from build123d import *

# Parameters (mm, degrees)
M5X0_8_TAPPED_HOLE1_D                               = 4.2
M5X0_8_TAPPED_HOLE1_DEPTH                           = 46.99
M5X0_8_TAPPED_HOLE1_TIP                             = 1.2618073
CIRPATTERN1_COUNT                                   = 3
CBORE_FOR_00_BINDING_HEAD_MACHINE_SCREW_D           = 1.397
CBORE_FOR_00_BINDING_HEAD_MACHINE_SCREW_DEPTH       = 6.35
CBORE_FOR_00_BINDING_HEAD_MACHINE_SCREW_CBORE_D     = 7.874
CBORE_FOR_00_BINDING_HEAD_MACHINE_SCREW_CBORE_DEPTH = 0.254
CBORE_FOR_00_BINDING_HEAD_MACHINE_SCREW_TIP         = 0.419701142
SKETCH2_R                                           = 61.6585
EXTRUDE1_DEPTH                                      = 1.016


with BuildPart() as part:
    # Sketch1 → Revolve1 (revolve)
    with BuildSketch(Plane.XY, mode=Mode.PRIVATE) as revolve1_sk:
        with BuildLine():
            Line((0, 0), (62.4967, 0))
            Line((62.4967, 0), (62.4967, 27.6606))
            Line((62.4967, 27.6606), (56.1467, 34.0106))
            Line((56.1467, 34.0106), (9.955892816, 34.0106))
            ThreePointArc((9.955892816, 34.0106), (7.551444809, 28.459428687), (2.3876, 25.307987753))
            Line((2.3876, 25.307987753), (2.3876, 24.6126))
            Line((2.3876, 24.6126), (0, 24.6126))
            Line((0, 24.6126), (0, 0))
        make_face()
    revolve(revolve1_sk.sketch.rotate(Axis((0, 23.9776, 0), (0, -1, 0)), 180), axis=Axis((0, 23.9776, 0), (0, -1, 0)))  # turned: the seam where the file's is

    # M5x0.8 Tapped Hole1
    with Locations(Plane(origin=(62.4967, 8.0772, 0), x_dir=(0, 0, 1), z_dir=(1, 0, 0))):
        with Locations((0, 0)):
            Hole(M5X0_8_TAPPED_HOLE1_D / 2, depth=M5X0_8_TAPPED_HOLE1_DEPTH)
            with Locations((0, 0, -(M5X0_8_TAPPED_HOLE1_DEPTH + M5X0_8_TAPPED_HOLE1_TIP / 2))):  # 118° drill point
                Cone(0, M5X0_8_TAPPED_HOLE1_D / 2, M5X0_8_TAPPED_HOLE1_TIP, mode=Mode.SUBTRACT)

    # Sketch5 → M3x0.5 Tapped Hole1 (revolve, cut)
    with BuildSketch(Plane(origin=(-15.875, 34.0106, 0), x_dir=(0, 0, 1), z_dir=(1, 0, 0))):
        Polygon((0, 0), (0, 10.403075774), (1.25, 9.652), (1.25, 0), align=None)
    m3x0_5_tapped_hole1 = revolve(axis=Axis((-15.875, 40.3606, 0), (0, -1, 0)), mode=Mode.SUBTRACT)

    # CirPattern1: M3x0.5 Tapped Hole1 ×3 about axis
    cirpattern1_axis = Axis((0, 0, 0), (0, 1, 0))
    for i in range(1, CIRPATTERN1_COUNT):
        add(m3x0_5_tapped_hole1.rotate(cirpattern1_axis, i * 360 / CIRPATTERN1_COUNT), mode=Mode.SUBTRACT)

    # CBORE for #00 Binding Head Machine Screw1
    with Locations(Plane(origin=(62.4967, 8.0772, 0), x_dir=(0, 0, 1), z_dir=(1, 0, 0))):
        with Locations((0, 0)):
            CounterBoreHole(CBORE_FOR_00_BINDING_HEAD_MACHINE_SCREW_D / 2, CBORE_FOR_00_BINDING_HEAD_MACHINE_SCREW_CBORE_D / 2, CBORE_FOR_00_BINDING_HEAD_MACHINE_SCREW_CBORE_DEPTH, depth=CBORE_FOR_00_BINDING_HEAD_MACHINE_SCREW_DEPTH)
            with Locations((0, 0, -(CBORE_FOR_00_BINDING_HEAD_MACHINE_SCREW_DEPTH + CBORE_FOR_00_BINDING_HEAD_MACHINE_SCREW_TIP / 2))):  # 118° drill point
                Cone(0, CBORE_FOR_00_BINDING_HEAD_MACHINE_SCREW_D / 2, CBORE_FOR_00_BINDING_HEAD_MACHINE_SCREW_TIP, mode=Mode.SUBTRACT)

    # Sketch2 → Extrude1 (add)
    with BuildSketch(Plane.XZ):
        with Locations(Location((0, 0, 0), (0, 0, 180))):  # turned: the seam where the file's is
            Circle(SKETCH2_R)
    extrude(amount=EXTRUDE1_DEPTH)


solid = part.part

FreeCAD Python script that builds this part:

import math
import FreeCAD as App
import Part
import Sketcher

V = App.Vector
Q = App.Units.Quantity

doc = App.newDocument("Part")
body = doc.addObject("PartDesign::Body", "Body")

# Sketch on XY plane
sketch1 = doc.addObject("Sketcher::SketchObject", "Sketch")
body.addObject(sketch1)
sketch1.AttachmentSupport = (doc.XY_Plane, [""])
sketch1.MapMode = "FlatFace"
sketch1.addGeometry(Part.LineSegment(V(0, 0, 0), V(62.5, 0, 0)), False)
sketch1.addGeometry(Part.LineSegment(V(62.5, 0, 0), V(62.5, 27.7, 0)), False)
sketch1.addGeometry(Part.LineSegment(V(62.5, 27.7, 0), V(56.1, 34, 0)), False)
sketch1.addGeometry(Part.LineSegment(V(56.1, 34, 0), V(10, 34, 0)), False)
sketch1.addGeometry(Part.ArcOfCircle(Part.Circle(V(0, 35, 0), V(0, 0, 1), 10), math.radians(-76), math.radians(-6)), False)
sketch1.addGeometry(Part.LineSegment(V(2.4, 25.3, 0), V(2.4, 24.6, 0)), False)
sketch1.addGeometry(Part.LineSegment(V(2.4, 24.6, 0), V(0, 24.6, 0)), False)
sketch1.addGeometry(Part.LineSegment(V(0, 24.6, 0), V(0, 0, 0)), False)
sketch1.addConstraint(Sketcher.Constraint("Coincident", 0, 2, 1, 1))
sketch1.addConstraint(Sketcher.Constraint("Coincident", 1, 2, 2, 1))
sketch1.addConstraint(Sketcher.Constraint("Coincident", 2, 2, 3, 1))
sketch1.addConstraint(Sketcher.Constraint("Coincident", 3, 2, 4, 2))
sketch1.addConstraint(Sketcher.Constraint("Coincident", 4, 1, 5, 1))
sketch1.addConstraint(Sketcher.Constraint("Coincident", 5, 2, 6, 1))
sketch1.addConstraint(Sketcher.Constraint("Coincident", 6, 2, 7, 1))
sketch1.addConstraint(Sketcher.Constraint("Coincident", 7, 2, 0, 1))
sketch1.addConstraint(Sketcher.Constraint("Horizontal", 0))
sketch1.addConstraint(Sketcher.Constraint("Vertical", 1))
sketch1.addConstraint(Sketcher.Constraint("Horizontal", 3))
sketch1.addConstraint(Sketcher.Constraint("Vertical", 5))
sketch1.addConstraint(Sketcher.Constraint("Horizontal", 6))
sketch1.addConstraint(Sketcher.Constraint("Vertical", 7))
sketch1.addConstraint(Sketcher.Constraint("Coincident", 7, 2, -1, 1))
sketch1.addConstraint(Sketcher.Constraint("PointOnObject", 4, 3, -2))
sketch1.addConstraint(Sketcher.Constraint("Angle", 2, Q("135 deg")))
sketch1.addConstraint(Sketcher.Constraint("Radius", 4, Q("0.394 in")))
sketch1.addConstraint(Sketcher.Constraint("DistanceX", 6, 2, 6, 1, Q("0.094 in")))
sketch1.addConstraint(Sketcher.Constraint("DistanceY", 1, 1, 1, 2, Q("1.089 in")))
sketch1.addConstraint(Sketcher.Constraint("DistanceY", 7, 2, 7, 1, Q("0.969 in")))
sketch1.addConstraint(Sketcher.Constraint("DistanceY", 1, 2, 4, 3, Q("0.29 in")))
sketch1.addConstraint(Sketcher.Constraint("DistanceX", 2, 2, 1, 2, Q("0.25 in")))
sketch1.addConstraint(Sketcher.Constraint("DistanceX", 0, 1, 0, 2, Q("2.4605 in")))
revolution = doc.addObject("PartDesign::Revolution", "Revolution")
body.addObject(revolution)
revolution.Profile = sketch1
revolution.ReferenceAxis = (sketch1, ["V_Axis"])
revolution.Angle = 360

# Sketch on YZ plane
sketch2 = doc.addObject("Sketcher::SketchObject", "Sketch001")
body.addObject(sketch2)
sketch2.AttachmentSupport = (doc.YZ_Plane, [""])
sketch2.MapMode = "FlatFace"
sketch2.AttachmentOffset = App.Placement(V(0, 0, 2.4605 * 25.4), App.Rotation())
sketch2.addGeometry(Part.Circle(V(8.1, 0, 0), V(0, 0, 1), 2.1), False)
sketch2.addConstraint(Sketcher.Constraint("PointOnObject", 0, 3, -1))
sketch2.addConstraint(Sketcher.Constraint("Diameter", 0, Q("4.2 mm")))
sketch2.addConstraint(Sketcher.Constraint("DistanceX", -1, 1, 0, 3, Q("0.318 in")))
doc.recompute()
hole = doc.addObject("PartDesign::Hole", "Hole")
body.addObject(hole)
hole.Profile = sketch2
hole.ThreadType = "None"
hole.Diameter = 4.2
hole.DepthType = "Dimension"
hole.Depth = Q("1.85 in")
hole.DrillPoint = "Angled"
hole.DrillPointAngle = 118

# Sketch on YZ plane
sketch3 = doc.addObject("Sketcher::SketchObject", "Sketch002")
body.addObject(sketch3)
sketch3.AttachmentSupport = (doc.YZ_Plane, [""])
sketch3.MapMode = "FlatFace"
sketch3.AttachmentOffset = App.Placement(V(0, 0, -0.625 * 25.4), App.Rotation())
sketch3.addGeometry(Part.LineSegment(V(23.6, 0, 0), V(34, 0, 0)), False)
sketch3.addGeometry(Part.LineSegment(V(34, 0, 0), V(34, 1.2, 0)), False)
sketch3.addGeometry(Part.LineSegment(V(34, 1.2, 0), V(24.4, 1.2, 0)), False)
sketch3.addGeometry(Part.LineSegment(V(24.4, 1.2, 0), V(23.6, 0, 0)), False)
sketch3.addConstraint(Sketcher.Constraint("Coincident", 0, 2, 1, 1))
sketch3.addConstraint(Sketcher.Constraint("Coincident", 1, 2, 2, 1))
sketch3.addConstraint(Sketcher.Constraint("Coincident", 2, 2, 3, 1))
sketch3.addConstraint(Sketcher.Constraint("Coincident", 3, 2, 0, 1))
sketch3.addConstraint(Sketcher.Constraint("Horizontal", 0))
sketch3.addConstraint(Sketcher.Constraint("Vertical", 1))
sketch3.addConstraint(Sketcher.Constraint("Horizontal", 2))
sketch3.addConstraint(Sketcher.Constraint("PointOnObject", 0, 2, -1))
sketch3.addConstraint(Sketcher.Constraint("Angle", 3, Q("-121 deg")))
sketch3.addConstraint(Sketcher.Constraint("DistanceX", 2, 2, 2, 1, Q("0.38 in")))
sketch3.addConstraint(Sketcher.Constraint("DistanceX", -1, 1, 0, 2, Q("1.339 in")))
sketch3.addConstraint(Sketcher.Constraint("DistanceY", 1, 1, 1, 2, Q("1.25 mm")))
groove = doc.addObject("PartDesign::Groove", "Groove")
body.addObject(groove)
groove.Profile = sketch3
groove.ReferenceAxis = (sketch3, ["H_Axis"])
groove.Angle = 360
doc.recompute()

polarpattern = doc.addObject("PartDesign::PolarPattern", "PolarPattern")
body.addObject(polarpattern)
polarpattern.Originals = [groove]
polarpattern.Axis = (doc.Y_Axis, [""])
polarpattern.Angle = 360
polarpattern.Occurrences = 3
body.Tip = polarpattern

# Sketch on YZ plane
sketch4 = doc.addObject("Sketcher::SketchObject", "Sketch003")
body.addObject(sketch4)
sketch4.AttachmentSupport = (doc.YZ_Plane, [""])
sketch4.MapMode = "FlatFace"
sketch4.AttachmentOffset = App.Placement(V(0, 0, 2.4605 * 25.4), App.Rotation())
sketch4.addGeometry(Part.Circle(V(8.1, 0, 0), V(0, 0, 1), 0.7), False)
sketch4.addConstraint(Sketcher.Constraint("PointOnObject", 0, 3, -1))
sketch4.addConstraint(Sketcher.Constraint("Diameter", 0, Q("0.055 in")))
sketch4.addConstraint(Sketcher.Constraint("DistanceX", -1, 1, 0, 3, Q("0.318 in")))
doc.recompute()
hole2 = doc.addObject("PartDesign::Hole", "Hole001")
body.addObject(hole2)
hole2.Profile = sketch4
hole2.ThreadType = "None"
hole2.Diameter = Q("0.055 in")
hole2.DepthType = "Dimension"
hole2.Depth = Q("0.25 in")
hole2.DrillPoint = "Angled"
hole2.DrillPointAngle = 118
hole2.HoleCutType = "Counterbore"
hole2.HoleCutDiameter = Q("0.31 in")
hole2.HoleCutDepth = Q("0.01 in")

# Sketch on XZ plane
sketch5 = doc.addObject("Sketcher::SketchObject", "Sketch004")
body.addObject(sketch5)
sketch5.AttachmentSupport = (doc.XZ_Plane, [""])
sketch5.MapMode = "FlatFace"
sketch5.addGeometry(Part.Circle(V(0, 0, 0), V(0, 0, 1), 62), False)
sketch5.addConstraint(Sketcher.Constraint("Coincident", 0, 3, -1, 1))
sketch5.addConstraint(Sketcher.Constraint("Diameter", 0, Q("4.855 in")))
pad1 = doc.addObject("PartDesign::Pad", "Pad")
body.addObject(pad1)
pad1.Profile = sketch5
pad1.Length = Q("0.04 in")

doc.recompute()
